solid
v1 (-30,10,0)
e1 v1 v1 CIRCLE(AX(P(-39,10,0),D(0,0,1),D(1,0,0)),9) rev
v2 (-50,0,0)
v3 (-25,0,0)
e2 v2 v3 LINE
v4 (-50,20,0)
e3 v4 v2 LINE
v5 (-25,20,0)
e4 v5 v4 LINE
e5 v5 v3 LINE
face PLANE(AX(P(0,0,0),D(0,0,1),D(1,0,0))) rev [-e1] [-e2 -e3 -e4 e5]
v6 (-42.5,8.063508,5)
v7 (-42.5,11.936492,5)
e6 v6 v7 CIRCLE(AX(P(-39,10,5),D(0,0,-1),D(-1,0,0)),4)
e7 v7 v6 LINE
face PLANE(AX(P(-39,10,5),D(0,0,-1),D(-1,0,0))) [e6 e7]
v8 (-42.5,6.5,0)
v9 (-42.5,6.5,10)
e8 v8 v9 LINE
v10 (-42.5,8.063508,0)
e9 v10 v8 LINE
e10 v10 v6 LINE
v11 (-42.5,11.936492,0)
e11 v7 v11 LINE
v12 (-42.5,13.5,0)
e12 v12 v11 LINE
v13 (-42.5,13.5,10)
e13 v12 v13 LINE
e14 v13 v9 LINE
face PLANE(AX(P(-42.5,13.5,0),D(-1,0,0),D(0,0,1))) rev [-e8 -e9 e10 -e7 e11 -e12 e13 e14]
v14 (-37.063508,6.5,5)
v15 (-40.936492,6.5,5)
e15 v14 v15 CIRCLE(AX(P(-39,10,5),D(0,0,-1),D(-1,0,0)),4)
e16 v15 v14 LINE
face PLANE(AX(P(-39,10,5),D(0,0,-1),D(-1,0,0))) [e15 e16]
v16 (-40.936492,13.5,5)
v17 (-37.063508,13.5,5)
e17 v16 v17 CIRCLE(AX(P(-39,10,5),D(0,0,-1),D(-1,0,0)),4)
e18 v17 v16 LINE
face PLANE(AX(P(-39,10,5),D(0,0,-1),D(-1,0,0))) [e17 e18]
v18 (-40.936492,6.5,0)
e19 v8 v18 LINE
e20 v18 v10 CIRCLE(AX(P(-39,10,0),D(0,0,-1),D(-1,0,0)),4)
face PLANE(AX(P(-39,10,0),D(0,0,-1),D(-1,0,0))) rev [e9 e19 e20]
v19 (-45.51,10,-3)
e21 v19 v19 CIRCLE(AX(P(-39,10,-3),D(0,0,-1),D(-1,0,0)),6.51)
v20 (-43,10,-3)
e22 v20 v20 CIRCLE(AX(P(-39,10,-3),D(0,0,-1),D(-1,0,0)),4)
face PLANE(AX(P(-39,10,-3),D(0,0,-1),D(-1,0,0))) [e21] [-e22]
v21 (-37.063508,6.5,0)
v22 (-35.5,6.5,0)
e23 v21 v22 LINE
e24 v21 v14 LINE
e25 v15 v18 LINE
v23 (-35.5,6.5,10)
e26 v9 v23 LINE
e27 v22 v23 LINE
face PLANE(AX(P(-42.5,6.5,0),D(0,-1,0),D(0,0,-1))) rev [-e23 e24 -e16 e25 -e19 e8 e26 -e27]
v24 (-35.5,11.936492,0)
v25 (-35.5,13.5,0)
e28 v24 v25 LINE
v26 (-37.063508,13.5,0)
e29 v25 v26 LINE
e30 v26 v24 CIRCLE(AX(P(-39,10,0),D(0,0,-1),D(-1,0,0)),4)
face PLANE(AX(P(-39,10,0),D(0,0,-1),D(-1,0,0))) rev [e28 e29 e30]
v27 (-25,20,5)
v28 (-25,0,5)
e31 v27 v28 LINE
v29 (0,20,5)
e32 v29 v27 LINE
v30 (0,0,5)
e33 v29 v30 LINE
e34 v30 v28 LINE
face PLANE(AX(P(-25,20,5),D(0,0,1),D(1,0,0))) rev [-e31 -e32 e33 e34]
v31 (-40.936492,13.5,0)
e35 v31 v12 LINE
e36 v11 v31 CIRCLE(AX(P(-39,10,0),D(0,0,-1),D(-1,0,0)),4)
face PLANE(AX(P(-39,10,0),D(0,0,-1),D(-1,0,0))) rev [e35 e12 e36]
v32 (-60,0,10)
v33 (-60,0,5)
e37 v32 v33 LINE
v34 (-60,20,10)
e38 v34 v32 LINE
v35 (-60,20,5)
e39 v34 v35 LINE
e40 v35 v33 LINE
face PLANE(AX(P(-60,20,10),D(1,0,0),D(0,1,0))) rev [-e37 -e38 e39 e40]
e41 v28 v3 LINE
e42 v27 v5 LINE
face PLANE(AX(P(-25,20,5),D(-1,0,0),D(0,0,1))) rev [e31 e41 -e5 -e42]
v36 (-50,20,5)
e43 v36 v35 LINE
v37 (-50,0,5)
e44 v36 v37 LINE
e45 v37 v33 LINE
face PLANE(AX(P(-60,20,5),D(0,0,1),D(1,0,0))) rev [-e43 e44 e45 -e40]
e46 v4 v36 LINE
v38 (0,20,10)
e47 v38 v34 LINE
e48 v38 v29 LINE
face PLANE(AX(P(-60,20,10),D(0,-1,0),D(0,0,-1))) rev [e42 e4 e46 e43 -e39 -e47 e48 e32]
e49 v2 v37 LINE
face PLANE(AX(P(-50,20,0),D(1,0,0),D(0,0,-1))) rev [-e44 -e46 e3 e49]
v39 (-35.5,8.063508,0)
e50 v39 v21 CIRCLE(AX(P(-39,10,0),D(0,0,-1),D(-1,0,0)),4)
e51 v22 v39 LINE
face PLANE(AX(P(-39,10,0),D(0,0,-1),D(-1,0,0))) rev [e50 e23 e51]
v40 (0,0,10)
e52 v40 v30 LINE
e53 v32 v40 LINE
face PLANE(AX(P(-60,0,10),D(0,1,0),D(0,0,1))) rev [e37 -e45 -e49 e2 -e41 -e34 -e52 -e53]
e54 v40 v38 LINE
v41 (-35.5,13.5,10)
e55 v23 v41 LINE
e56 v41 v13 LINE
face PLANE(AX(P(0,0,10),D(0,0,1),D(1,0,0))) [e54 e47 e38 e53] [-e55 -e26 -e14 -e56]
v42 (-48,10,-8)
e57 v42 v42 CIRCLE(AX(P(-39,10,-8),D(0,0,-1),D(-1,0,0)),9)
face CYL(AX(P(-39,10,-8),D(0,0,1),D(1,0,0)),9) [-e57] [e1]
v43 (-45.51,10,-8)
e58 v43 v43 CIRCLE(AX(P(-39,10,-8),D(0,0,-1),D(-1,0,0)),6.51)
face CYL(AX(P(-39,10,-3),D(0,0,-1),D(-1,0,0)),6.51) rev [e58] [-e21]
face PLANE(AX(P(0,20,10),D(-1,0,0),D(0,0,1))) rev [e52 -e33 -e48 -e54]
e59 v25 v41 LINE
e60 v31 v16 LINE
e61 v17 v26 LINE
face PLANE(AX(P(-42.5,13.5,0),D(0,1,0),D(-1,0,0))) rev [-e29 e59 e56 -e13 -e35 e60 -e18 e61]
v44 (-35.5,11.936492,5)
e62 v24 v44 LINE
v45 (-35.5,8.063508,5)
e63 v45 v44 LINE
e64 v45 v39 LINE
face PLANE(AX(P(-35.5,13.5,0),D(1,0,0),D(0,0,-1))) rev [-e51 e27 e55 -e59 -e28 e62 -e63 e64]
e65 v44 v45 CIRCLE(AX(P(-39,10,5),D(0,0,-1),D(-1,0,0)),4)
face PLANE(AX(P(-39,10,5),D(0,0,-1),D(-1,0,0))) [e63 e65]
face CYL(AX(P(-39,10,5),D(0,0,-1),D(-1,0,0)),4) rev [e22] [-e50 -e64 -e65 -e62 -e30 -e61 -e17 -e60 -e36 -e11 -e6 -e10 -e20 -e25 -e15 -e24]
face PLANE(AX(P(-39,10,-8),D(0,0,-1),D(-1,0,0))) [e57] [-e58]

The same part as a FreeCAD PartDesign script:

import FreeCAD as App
import Part
import Sketcher
Q = App.Units.Quantity

doc = App.newDocument("Part")
body = doc.addObject("PartDesign::Body", "Body")

# Sketch on XY plane
sketch1 = doc.addObject("Sketcher::SketchObject", "Sketch")
body.addObject(sketch1)
sketch1.AttachmentSupport = (doc.XY_Plane, [""])
sketch1.MapMode = "FlatFace"
sketch1.addGeometry([
    Part.LineSegment(App.Vector(-60, 20, 0), App.Vector(-60, 0, 0)),
    Part.LineSegment(App.Vector(-60, 0, 0), App.Vector(0, 0, 0)),
    Part.LineSegment(App.Vector(0, 0, 0), App.Vector(0, 20, 0)),
    Part.LineSegment(App.Vector(0, 20, 0), App.Vector(-60, 20, 0)),
], False)
sketch1.addConstraint([
    Sketcher.Constraint("Coincident", 0, 2, 1, 1),
    Sketcher.Constraint("Coincident", 1, 2, 2, 1),
    Sketcher.Constraint("Coincident", 2, 2, 3, 1),
    Sketcher.Constraint("Coincident", 3, 2, 0, 1),
    Sketcher.Constraint("Vertical", 0),
    Sketcher.Constraint("Horizontal", 1),
    Sketcher.Constraint("Vertical", 2),
    Sketcher.Constraint("Horizontal", 3),
    Sketcher.Constraint("Coincident", 1, 2, -1, 1),
    Sketcher.Constraint("DistanceX", 1, 1, 1, 2, Q("60 mm")),
    Sketcher.Constraint("DistanceY", 0, 2, 0, 1, Q("20 mm")),
])
pad1 = doc.addObject("PartDesign::Pad", "Pad")
body.addObject(pad1)
pad1.Profile = sketch1
pad1.Length = 10

# Sketch on XY plane
sketch2 = doc.addObject("Sketcher::SketchObject", "Sketch001")
body.addObject(sketch2)
sketch2.AttachmentSupport = (doc.XY_Plane, [""])
sketch2.MapMode = "FlatFace"
sketch2.AttachmentOffset = App.Placement(App.Vector(0, 0, 10), App.Rotation())
sketch2.addGeometry([
    Part.LineSegment(App.Vector(-42, 14, 0), App.Vector(-42, 6, 0)),
    Part.LineSegment(App.Vector(-42, 6, 0), App.Vector(-36, 6, 0)),
    Part.LineSegment(App.Vector(-36, 6, 0), App.Vector(-36, 14, 0)),
    Part.LineSegment(App.Vector(-36, 14, 0), App.Vector(-42, 14, 0)),
], False)
sketch2.addConstraint([
    Sketcher.Constraint("Coincident", 0, 2, 1, 1),
    Sketcher.Constraint("Coincident", 1, 2, 2, 1),
    Sketcher.Constraint("Coincident", 2, 2, 3, 1),
    Sketcher.Constraint("Coincident", 3, 2, 0, 1),
    Sketcher.Constraint("Vertical", 0),
    Sketcher.Constraint("Horizontal", 1),
    Sketcher.Constraint("Vertical", 2),
    Sketcher.Constraint("Horizontal", 3),
    Sketcher.Constraint("Equal", 3, 0),
    Sketcher.Constraint("DistanceX", 1, 1, 1, 2, Q("7 mm")),
    Sketcher.Constraint("DistanceX", 0, 2, -1, 1, Q("42.5 mm")),
    Sketcher.Constraint("DistanceY", -1, 1, 0, 2, Q("6.5 mm")),
])
pocket1 = doc.addObject("PartDesign::Pocket", "Pocket")
body.addObject(pocket1)
pocket1.Profile = sketch2
pocket1.Length = 10

# Sketch on XZ plane
sketch3 = doc.addObject("Sketcher::SketchObject", "Sketch002")
body.addObject(sketch3)
sketch3.AttachmentSupport = (doc.XZ_Plane, [""])
sketch3.MapMode = "FlatFace"
sketch3.addGeometry([
    Part.LineSegment(App.Vector(0, 0, 0), App.Vector(0, 5, 0)),  # 0
    Part.LineSegment(App.Vector(0, 5, 0), App.Vector(-25, 5, 0)),  # 1
    Part.LineSegment(App.Vector(-25, 5, 0), App.Vector(-25, 0, 0)),  # 2
    Part.LineSegment(App.Vector(-25, 0, 0), App.Vector(0, 0, 0)),  # 3
    Part.LineSegment(App.Vector(-50, 0, 0), App.Vector(-50, 5, 0)),  # 4
    Part.LineSegment(App.Vector(-50, 5, 0), App.Vector(-60, 5, 0)),  # 5
    Part.LineSegment(App.Vector(-60, 5, 0), App.Vector(-60, 0, 0)),  # 6
    Part.LineSegment(App.Vector(-60, 0, 0), App.Vector(-50, 0, 0)),  # 7
], False)
sketch3.addConstraint([
    Sketcher.Constraint("Coincident", 0, 2, 1, 1),
    Sketcher.Constraint("Coincident", 1, 2, 2, 1),
    Sketcher.Constraint("Coincident", 2, 2, 3, 1),
    Sketcher.Constraint("Coincident", 3, 2, 0, 1),
    Sketcher.Constraint("Coincident", 4, 2, 5, 1),
    Sketcher.Constraint("Coincident", 5, 2, 6, 1),
    Sketcher.Constraint("Coincident", 6, 2, 7, 1),
    Sketcher.Constraint("Coincident", 7, 2, 4, 1),
    Sketcher.Constraint("Vertical", 0),
    Sketcher.Constraint("Horizontal", 1),
    Sketcher.Constraint("Vertical", 2),
    Sketcher.Constraint("Horizontal", 3),
    Sketcher.Constraint("Vertical", 4),
    Sketcher.Constraint("Horizontal", 5),
    Sketcher.Constraint("Vertical", 6),
    Sketcher.Constraint("Horizontal", 7),
    Sketcher.Constraint("Coincident", 3, 2, -1, 1),
    Sketcher.Constraint("PointOnObject", 6, 2, -1),
    Sketcher.Constraint("Horizontal", 1, 2, 4, 2),
    Sketcher.Constraint("DistanceX", 1, 2, 1, 1, Q("25 mm")),
    Sketcher.Constraint("DistanceX", 5, 2, 5, 1, Q("10 mm")),
    Sketcher.Constraint("DistanceY", 0, 1, 0, 2, Q("5 mm")),
    Sketcher.Constraint("DistanceX", 4, 2, -1, 1, Q("50 mm")),
])
pocket2 = doc.addObject("PartDesign::Pocket", "Pocket001")
body.addObject(pocket2)
pocket2.Profile = sketch3
pocket2.Type = "ThroughAll"

# Sketch on XY plane
sketch4 = doc.addObject("Sketcher::SketchObject", "Sketch003")
body.addObject(sketch4)
sketch4.AttachmentSupport = (doc.XY_Plane, [""])
sketch4.MapMode = "FlatFace"
sketch4.addGeometry(Part.Circle(App.Vector(-39, 10, 0), App.Vector(0, 0, 1), 9), False)
sketch4.addConstraint([
    Sketcher.Constraint("Diameter", 0, Q("18 mm")),
    Sketcher.Constraint("DistanceX", 0, 3, -1, 1, Q("39 mm")),
    Sketcher.Constraint("DistanceY", -1, 1, 0, 3, Q("10 mm")),
])
pad2 = doc.addObject("PartDesign::Pad", "Pad001")
body.addObject(pad2)
pad2.Profile = sketch4
pad2.Length = 8
pad2.Reversed = True

# Sketch on XY plane
sketch5 = doc.addObject("Sketcher::SketchObject", "Sketch004")
body.addObject(sketch5)
sketch5.AttachmentSupport = (doc.XY_Plane, [""])
sketch5.MapMode = "FlatFace"
sketch5.AttachmentOffset = App.Placement(App.Vector(0, 0, -8), App.Rotation())
sketch5.addGeometry(Part.Circle(App.Vector(-39, 10, 0), App.Vector(0, 0, 1), 7), False)
sketch5.addConstraint([
    Sketcher.Constraint("Diameter", 0, Q("13.02 mm")),
    Sketcher.Constraint("DistanceX", 0, 3, -1, 1, Q("39 mm")),
    Sketcher.Constraint("DistanceY", -1, 1, 0, 3, Q("10 mm")),
])
pocket3 = doc.addObject("PartDesign::Pocket", "Pocket002")
body.addObject(pocket3)
pocket3.Profile = sketch5
pocket3.Length = 5
pocket3.Reversed = True

# Sketch on XY plane
sketch6 = doc.addObject("Sketcher::SketchObject", "Sketch005")
body.addObject(sketch6)
sketch6.AttachmentSupport = (doc.XY_Plane, [""])
sketch6.MapMode = "FlatFace"
sketch6.AttachmentOffset = App.Placement(App.Vector(0, 0, -3), App.Rotation())
sketch6.addGeometry(Part.Circle(App.Vector(-39, 10, 0), App.Vector(0, 0, 1), 4), False)
sketch6.addConstraint([
    Sketcher.Constraint("Diameter", 0, Q("8 mm")),
    Sketcher.Constraint("DistanceX", 0, 3, -1, 1, Q("39 mm")),
    Sketcher.Constraint("DistanceY", -1, 1, 0, 3, Q("10 mm")),
])
pocket4 = doc.addObject("PartDesign::Pocket", "Pocket003")
body.addObject(pocket4)
pocket4.Profile = sketch6
pocket4.Length = 8
pocket4.Reversed = True

doc.recompute()
